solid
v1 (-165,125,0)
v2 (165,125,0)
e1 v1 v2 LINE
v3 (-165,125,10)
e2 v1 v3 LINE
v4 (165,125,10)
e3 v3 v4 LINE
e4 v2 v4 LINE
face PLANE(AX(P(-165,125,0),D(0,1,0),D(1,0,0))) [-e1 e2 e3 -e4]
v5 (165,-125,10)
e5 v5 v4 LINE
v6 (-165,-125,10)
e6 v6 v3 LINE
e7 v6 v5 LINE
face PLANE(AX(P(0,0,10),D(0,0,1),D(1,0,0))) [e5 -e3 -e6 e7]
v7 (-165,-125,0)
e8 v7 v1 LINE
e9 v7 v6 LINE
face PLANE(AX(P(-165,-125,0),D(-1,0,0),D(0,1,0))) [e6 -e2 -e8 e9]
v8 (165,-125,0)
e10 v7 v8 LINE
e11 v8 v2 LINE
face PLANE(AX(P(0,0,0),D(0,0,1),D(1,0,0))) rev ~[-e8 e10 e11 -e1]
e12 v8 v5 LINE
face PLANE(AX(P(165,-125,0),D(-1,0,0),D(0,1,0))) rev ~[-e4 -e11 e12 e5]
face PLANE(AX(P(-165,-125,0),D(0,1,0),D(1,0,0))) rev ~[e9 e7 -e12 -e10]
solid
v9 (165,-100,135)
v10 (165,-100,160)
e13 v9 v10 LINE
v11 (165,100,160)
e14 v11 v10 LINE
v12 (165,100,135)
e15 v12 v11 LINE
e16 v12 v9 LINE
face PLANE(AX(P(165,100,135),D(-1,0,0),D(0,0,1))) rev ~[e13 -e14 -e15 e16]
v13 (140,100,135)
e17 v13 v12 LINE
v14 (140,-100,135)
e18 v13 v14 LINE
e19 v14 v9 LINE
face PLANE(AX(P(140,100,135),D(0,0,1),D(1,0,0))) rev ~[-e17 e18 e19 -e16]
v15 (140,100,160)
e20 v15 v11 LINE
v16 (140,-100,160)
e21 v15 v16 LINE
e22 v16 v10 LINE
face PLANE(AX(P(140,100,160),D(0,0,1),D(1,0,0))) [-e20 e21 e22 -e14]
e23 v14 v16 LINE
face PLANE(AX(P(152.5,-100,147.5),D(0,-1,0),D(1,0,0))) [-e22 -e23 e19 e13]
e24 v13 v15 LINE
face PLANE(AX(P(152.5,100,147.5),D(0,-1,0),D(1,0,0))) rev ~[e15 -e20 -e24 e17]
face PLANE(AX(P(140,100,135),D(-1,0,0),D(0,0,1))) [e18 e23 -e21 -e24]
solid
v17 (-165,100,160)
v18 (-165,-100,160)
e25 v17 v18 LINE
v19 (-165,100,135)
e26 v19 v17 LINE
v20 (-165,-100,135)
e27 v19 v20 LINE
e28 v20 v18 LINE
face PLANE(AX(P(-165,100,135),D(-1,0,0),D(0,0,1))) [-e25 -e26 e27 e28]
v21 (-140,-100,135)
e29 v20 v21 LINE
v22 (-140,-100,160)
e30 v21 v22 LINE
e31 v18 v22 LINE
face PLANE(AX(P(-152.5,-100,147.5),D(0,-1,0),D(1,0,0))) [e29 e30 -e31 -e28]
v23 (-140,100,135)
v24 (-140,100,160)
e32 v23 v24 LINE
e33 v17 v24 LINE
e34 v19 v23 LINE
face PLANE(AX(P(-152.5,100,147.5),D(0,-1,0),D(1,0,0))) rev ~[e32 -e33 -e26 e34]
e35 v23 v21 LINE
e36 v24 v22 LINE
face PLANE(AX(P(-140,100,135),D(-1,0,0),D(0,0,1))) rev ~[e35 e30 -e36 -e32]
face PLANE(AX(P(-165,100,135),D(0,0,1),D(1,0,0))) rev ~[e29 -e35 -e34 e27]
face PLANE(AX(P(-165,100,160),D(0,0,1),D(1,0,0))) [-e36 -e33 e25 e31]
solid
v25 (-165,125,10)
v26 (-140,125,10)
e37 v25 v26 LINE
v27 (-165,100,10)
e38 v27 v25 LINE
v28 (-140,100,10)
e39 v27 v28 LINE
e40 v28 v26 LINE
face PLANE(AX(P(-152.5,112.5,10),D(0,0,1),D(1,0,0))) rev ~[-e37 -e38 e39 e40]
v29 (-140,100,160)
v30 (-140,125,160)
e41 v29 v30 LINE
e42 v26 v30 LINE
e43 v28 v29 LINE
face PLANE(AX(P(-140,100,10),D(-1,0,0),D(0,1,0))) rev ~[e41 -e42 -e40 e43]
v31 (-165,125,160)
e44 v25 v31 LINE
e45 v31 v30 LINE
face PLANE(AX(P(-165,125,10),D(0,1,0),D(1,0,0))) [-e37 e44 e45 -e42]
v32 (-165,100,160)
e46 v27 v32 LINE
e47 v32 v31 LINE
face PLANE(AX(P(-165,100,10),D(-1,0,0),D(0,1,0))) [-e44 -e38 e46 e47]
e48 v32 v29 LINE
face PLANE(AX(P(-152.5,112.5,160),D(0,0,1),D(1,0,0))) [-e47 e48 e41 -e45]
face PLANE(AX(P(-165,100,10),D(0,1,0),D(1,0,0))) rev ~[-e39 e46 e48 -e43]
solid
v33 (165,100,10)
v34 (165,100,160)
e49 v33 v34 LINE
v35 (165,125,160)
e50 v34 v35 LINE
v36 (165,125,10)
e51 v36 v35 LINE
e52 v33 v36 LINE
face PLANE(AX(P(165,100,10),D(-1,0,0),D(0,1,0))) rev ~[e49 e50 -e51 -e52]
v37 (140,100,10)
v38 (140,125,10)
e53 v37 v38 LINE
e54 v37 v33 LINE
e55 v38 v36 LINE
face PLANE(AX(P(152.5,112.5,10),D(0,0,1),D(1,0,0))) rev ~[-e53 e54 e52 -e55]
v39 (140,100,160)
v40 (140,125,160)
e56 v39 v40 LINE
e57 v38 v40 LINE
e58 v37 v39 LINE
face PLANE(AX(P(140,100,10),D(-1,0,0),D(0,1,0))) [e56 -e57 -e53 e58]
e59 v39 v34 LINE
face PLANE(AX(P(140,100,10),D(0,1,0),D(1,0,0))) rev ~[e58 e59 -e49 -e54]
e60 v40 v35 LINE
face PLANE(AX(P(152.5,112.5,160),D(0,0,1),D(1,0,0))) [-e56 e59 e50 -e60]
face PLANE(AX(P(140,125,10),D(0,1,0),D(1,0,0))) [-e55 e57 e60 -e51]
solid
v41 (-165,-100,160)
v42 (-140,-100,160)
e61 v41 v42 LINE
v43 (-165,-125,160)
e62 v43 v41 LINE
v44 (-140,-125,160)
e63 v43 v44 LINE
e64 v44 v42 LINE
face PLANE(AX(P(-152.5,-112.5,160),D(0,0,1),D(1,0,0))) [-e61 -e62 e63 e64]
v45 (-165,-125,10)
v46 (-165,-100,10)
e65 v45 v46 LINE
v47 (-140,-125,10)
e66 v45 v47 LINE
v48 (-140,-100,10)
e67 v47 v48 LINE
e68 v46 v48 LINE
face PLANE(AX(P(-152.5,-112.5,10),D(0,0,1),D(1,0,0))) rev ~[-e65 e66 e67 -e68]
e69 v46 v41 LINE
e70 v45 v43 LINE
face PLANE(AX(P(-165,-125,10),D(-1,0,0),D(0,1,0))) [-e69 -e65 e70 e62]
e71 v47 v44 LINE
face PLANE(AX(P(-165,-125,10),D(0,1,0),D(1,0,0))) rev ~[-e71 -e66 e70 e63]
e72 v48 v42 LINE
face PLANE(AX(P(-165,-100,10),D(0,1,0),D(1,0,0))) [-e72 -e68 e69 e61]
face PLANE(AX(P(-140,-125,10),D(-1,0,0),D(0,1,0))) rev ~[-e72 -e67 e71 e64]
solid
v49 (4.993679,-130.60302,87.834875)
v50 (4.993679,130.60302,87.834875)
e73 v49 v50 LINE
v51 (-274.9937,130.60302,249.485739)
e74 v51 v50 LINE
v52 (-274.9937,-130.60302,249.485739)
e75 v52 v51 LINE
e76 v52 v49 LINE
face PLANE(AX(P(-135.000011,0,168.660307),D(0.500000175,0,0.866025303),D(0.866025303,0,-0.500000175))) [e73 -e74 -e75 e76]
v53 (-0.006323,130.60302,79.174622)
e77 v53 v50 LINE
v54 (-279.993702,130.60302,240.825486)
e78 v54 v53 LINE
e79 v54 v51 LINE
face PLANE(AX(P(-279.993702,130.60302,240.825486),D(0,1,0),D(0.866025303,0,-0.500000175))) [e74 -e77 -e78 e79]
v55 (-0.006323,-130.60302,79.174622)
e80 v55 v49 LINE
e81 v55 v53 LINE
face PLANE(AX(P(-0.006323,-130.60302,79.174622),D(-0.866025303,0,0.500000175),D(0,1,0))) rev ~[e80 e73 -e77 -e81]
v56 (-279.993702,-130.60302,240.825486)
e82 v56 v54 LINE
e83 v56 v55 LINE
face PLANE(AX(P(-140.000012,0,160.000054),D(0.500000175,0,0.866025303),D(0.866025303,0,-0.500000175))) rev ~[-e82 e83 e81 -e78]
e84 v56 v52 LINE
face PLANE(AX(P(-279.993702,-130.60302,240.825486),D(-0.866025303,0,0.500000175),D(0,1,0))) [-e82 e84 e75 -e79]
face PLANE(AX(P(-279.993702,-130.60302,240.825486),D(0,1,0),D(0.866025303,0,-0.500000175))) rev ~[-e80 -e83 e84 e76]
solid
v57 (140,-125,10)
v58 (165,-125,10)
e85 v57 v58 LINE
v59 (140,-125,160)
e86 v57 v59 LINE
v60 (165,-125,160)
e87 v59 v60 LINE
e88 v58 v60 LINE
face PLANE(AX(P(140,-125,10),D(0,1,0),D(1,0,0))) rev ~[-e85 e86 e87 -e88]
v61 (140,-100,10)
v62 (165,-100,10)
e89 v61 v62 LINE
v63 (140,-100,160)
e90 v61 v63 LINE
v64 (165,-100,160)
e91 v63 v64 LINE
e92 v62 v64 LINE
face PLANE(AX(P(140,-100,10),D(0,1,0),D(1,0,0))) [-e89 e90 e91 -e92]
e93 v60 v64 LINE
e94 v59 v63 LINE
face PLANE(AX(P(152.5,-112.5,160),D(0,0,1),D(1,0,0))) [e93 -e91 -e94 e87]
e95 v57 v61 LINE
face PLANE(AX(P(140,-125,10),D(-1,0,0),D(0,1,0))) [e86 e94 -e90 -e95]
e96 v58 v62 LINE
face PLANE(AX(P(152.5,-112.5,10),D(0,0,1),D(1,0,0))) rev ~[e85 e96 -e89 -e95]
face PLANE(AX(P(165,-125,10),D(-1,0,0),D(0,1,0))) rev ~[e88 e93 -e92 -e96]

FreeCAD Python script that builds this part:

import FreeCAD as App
import Part
import Sketcher
from FreeCAD import Vector
Q = App.Units.Quantity


def add_polygon(sketch, points):
    """Adds a closed chain of lines whose ends are joined by coincident constraints."""
    first, n = sketch.GeometryCount, len(points)
    for a, b in zip(points, points[1:] + points[:1]):
        sketch.addGeometry(Part.LineSegment(App.Vector(*a, 0), App.Vector(*b, 0)), False)
    for i in range(n):
        sketch.addConstraint(Sketcher.Constraint("Coincident", first + i, 2, first + (i + 1) % n, 1))

doc = App.newDocument("Part")
body = doc.addObject("PartDesign::Body", "Body")

sketch1 = body.newObject("Sketcher::SketchObject", "Sketch")
sketch1.AttachmentSupport = (doc.getObject("XY_Plane"), [""])
sketch1.MapMode = "FlatFace"
add_polygon(sketch1, [(-165, 125), (-165, -125), (165, -125), (165, 125)])
sketch1.addConstraint(Sketcher.Constraint("Vertical", 0))
sketch1.addConstraint(Sketcher.Constraint("Horizontal", 1))
sketch1.addConstraint(Sketcher.Constraint("Vertical", 2))
sketch1.addConstraint(Sketcher.Constraint("Horizontal", 3))
sketch1.addConstraint(Sketcher.Constraint("Symmetric", 0, 2, 2, 2, -1, 1))
sketch1.addConstraint(Sketcher.Constraint("DistanceX", 1, 1, 1, 2, Q("330 mm")))
sketch1.addConstraint(Sketcher.Constraint("DistanceY", 0, 2, 0, 1, Q("250 mm")))
pad1 = body.newObject("PartDesign::Pad", "Pad")
pad1.Profile = sketch1
pad1.Length = 10
body2 = doc.addObject("PartDesign::Body", "Body001")
body2.AllowCompound = True

sketch2 = body2.newObject("Sketcher::SketchObject", "Sketch001")
sketch2.AttachmentSupport = (doc.getObject("XY_Plane001"), [""])
sketch2.MapMode = "FlatFace"
sketch2.AttachmentOffset = App.Placement(Vector(0, 0, 10), App.Rotation())
add_polygon(sketch2, [(140, 125), (140, 100), (165, 100), (165, 125)])
add_polygon(sketch2, [(-165, -100), (-165, -125), (-140, -125), (-140, -100)])
add_polygon(sketch2, [(140, -100), (140, -125), (165, -125), (165, -100)])
add_polygon(sketch2, [(-165, 125), (-165, 100), (-140, 100), (-140, 125)])
sketch2.addConstraint(Sketcher.Constraint("Vertical", 0))
sketch2.addConstraint(Sketcher.Constraint("Horizontal", 1))
sketch2.addConstraint(Sketcher.Constraint("Vertical", 2))
sketch2.addConstraint(Sketcher.Constraint("Horizontal", 3))
sketch2.addConstraint(Sketcher.Constraint("Vertical", 4))
sketch2.addConstraint(Sketcher.Constraint("Horizontal", 5))
sketch2.addConstraint(Sketcher.Constraint("Vertical", 6))
sketch2.addConstraint(Sketcher.Constraint("Horizontal", 7))
sketch2.addConstraint(Sketcher.Constraint("Vertical", 8))
sketch2.addConstraint(Sketcher.Constraint("Horizontal", 9))
sketch2.addConstraint(Sketcher.Constraint("Vertical", 10))
sketch2.addConstraint(Sketcher.Constraint("Horizontal", 11))
sketch2.addConstraint(Sketcher.Constraint("Vertical", 12))
sketch2.addConstraint(Sketcher.Constraint("Horizontal", 13))
sketch2.addConstraint(Sketcher.Constraint("Vertical", 14))
sketch2.addConstraint(Sketcher.Constraint("Horizontal", 15))
sketch2.addConstraint(Sketcher.Constraint("Symmetric", 2, 2, 4, 2, -1, 1))
sketch2.addConstraint(Sketcher.Constraint("Symmetric", 0, 2, 6, 2, -1, 1))
sketch2.addConstraint(Sketcher.Constraint("Symmetric", 10, 2, 12, 2, -1, 1))
sketch2.addConstraint(Sketcher.Constraint("Symmetric", 8, 2, 14, 2, -1, 1))
sketch2.addConstraint(Sketcher.Constraint("Symmetric", 5, 2, 8, 2, -2))
sketch2.addConstraint(Sketcher.Constraint("Symmetric", 7, 2, 10, 2, -2))
sketch2.addConstraint(Sketcher.Constraint("Equal", 15, 0))
sketch2.addConstraint(Sketcher.Constraint("DistanceX", 1, 1, 1, 2, Q("25 mm")))
sketch2.addConstraint(Sketcher.Constraint("DistanceX", -1, 1, 0, 2, Q("140 mm")))
sketch2.addConstraint(Sketcher.Constraint("DistanceY", -1, 1, 0, 2, Q("100 mm")))
pad2 = body2.newObject("PartDesign::Pad", "Pad001")
pad2.Profile = sketch2
pad2.Length = 150
body3 = doc.addObject("PartDesign::Body", "Body002")

sketch3 = body3.newObject("Sketcher::SketchObject", "Sketch002")
sketch3.AttachmentSupport = (doc.getObject("XZ_Plane002"), [""])
sketch3.MapMode = "FlatFace"
sketch3.AttachmentOffset = App.Placement(Vector(0, 0, -100), App.Rotation())
add_polygon(sketch3, [(140, 160), (140, 135), (165, 135), (165, 160)])
sketch3.addConstraint(Sketcher.Constraint("Vertical", 0))
sketch3.addConstraint(Sketcher.Constraint("Horizontal", 1))
sketch3.addConstraint(Sketcher.Constraint("Vertical", 2))
sketch3.addConstraint(Sketcher.Constraint("Horizontal", 3))
sketch3.addConstraint(Sketcher.Constraint("Equal", 3, 0))
sketch3.addConstraint(Sketcher.Constraint("DistanceX", 1, 1, 1, 2, Q("25 mm")))
sketch3.addConstraint(Sketcher.Constraint("DistanceX", -1, 1, 0, 2, Q("140 mm")))
sketch3.addConstraint(Sketcher.Constraint("DistanceY", -1, 1, 0, 2, Q("135 mm")))
pad3 = body3.newObject("PartDesign::Pad", "Pad002")
pad3.Profile = sketch3
pad3.Length = 200
body4 = doc.addObject("PartDesign::Body", "Body003")

sketch4 = body4.newObject("Sketcher::SketchObject", "Sketch003")
sketch4.AttachmentSupport = (doc.getObject("XZ_Plane003"), [""])
sketch4.MapMode = "FlatFace"
sketch4.AttachmentOffset = App.Placement(Vector(0, 0, -100), App.Rotation())
add_polygon(sketch4, [(-165, 160), (-165, 135), (-140, 135), (-140, 160)])
sketch4.addConstraint(Sketcher.Constraint("Vertical", 0))
sketch4.addConstraint(Sketcher.Constraint("Horizontal", 1))
sketch4.addConstraint(Sketcher.Constraint("Vertical", 2))
sketch4.addConstraint(Sketcher.Constraint("Horizontal", 3))
sketch4.addConstraint(Sketcher.Constraint("Equal", 3, 0))
sketch4.addConstraint(Sketcher.Constraint("DistanceX", 1, 1, 1, 2, Q("25 mm")))
sketch4.addConstraint(Sketcher.Constraint("DistanceX", 0, 2, -1, 1, Q("165 mm")))
sketch4.addConstraint(Sketcher.Constraint("DistanceY", -1, 1, 0, 2, Q("135 mm")))
pad4 = body4.newObject("PartDesign::Pad", "Pad003")
pad4.Profile = sketch4
pad4.Length = 200
body5 = doc.addObject("PartDesign::Body", "Body004")

sketch5 = body5.newObject("Sketcher::SketchObject", "Sketch004")
sketch5.Placement = App.Placement(Vector(34.282032, 0, 59.378222), App.Rotation(Vector(0.866025303, 0, -0.500000175), Vector(0, 1, 0), Vector(0.500000175, 0, 0.866025303), "ZXY"))
add_polygon(sketch5, [(-363, 131), (-363, -131), (-40, -131), (-40, 131)])
sketch5.addConstraint(Sketcher.Constraint("Vertical", 0))
sketch5.addConstraint(Sketcher.Constraint("Horizontal", 1))
sketch5.addConstraint(Sketcher.Constraint("Vertical", 2))
sketch5.addConstraint(Sketcher.Constraint("Horizontal", 3))
sketch5.addConstraint(Sketcher.Constraint("DistanceY", 0, 2, 0, 1, Q("261.20604 mm")))
sketch5.addConstraint(Sketcher.Constraint("DistanceX", 0, 2, -1, 1, Q("362.894402 mm")))
sketch5.addConstraint(Sketcher.Constraint("DistanceX", 1, 1, 1, 2, Q("323.301615 mm")))
sketch5.addConstraint(Sketcher.Constraint("DistanceY", 0, 2, -1, 1, Q("130.60302 mm")))
pad5 = body5.newObject("PartDesign::Pad", "Pad004")
pad5.Profile = sketch5
pad5.Length = 10

doc.recompute()
